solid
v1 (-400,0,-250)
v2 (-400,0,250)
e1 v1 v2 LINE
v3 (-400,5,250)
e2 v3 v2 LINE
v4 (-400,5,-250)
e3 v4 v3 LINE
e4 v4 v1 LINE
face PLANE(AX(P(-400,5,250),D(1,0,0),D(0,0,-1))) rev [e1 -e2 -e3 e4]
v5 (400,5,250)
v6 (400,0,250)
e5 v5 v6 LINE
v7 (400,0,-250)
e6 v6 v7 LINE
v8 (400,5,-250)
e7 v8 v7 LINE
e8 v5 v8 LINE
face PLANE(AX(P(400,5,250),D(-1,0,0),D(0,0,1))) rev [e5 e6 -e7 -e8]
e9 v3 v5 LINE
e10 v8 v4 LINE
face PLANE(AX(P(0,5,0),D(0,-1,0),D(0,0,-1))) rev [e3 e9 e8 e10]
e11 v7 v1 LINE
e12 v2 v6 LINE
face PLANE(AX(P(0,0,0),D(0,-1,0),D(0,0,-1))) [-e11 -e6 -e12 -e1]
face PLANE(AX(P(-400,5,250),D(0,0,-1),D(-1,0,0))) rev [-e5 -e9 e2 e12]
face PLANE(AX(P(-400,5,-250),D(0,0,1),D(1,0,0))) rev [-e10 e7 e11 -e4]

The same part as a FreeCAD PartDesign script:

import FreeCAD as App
import Part
import Sketcher

V = App.Vector

doc = App.newDocument("Part")
body = doc.addObject("PartDesign::Body", "Body")

# Sketch on XZ plane
sketch1 = body.newObject("Sketcher::SketchObject", "Sketch")
sketch1.AttachmentSupport = (doc.getObject("XZ_Plane"), [""])
sketch1.MapMode = "FlatFace"
sketch1.addGeometry([
    Part.LineSegment(V(-400, -250, 0), V(-400, 250, 0)),
    Part.LineSegment(V(-400, 250, 0), V(400, 250, 0)),
    Part.LineSegment(V(400, 250, 0), V(400, -250, 0)),
    Part.LineSegment(V(400, -250, 0), V(-400, -250, 0)),
], False)
sketch1.addConstraint([
    Sketcher.Constraint("Coincident", 0, 2, 1, 1),
    Sketcher.Constraint("Coincident", 1, 2, 2, 1),
    Sketcher.Constraint("Coincident", 2, 2, 3, 1),
    Sketcher.Constraint("Coincident", 3, 2, 0, 1),
    Sketcher.Constraint("Vertical", 0),
    Sketcher.Constraint("Horizontal", 1),
    Sketcher.Constraint("Vertical", 2),
    Sketcher.Constraint("Horizontal", 3),
    Sketcher.Constraint("Symmetric", 0, 2, 2, 2, -1, 1),
    Sketcher.Constraint("DistanceX", 1, 1, 1, 2, 800.0),
    Sketcher.Constraint("DistanceY", 0, 1, 0, 2, 500.0),
])
pad1 = body.newObject("PartDesign::Pad", "Pad")
pad1.Profile = sketch1
pad1.Length = 5
pad1.Reversed = True

doc.recompute()
